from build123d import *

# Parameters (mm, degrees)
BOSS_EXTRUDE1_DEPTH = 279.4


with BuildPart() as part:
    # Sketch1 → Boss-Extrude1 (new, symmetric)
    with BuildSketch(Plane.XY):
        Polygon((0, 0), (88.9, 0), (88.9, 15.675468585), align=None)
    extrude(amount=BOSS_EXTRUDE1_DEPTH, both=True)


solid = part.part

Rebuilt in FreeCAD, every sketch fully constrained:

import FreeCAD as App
import Part
import Sketcher

V = App.Vector
Q = App.Units.Quantity


def add_polygon(sketch, points):
    """Adds a closed chain of lines whose ends are joined by coincident constraints."""
    first, n = sketch.GeometryCount, len(points)
    for a, b in zip(points, points[1:] + points[:1]):
        sketch.addGeometry(Part.LineSegment(App.Vector(*a, 0), App.Vector(*b, 0)), False)
    for i in range(n):
        sketch.addConstraint(Sketcher.Constraint("Coincident", first + i, 2, first + (i + 1) % n, 1))

doc = App.newDocument("Part")
body = doc.addObject("PartDesign::Body", "Body")

sketch1 = body.newObject("Sketcher::SketchObject", "Sketch")
sketch1.AttachmentSupport = (doc.getObject("XY_Plane"), [""])
sketch1.MapMode = "FlatFace"
add_polygon(sketch1, [(0, 0), (89, 0), (89, 16)])
sketch1.addConstraint([
    Sketcher.Constraint("Horizontal", 0),
    Sketcher.Constraint("Vertical", 1),
    Sketcher.Constraint("Coincident", 2, 2, -1, 1),
    Sketcher.Constraint("DistanceX", 0, 1, 0, 2, Q("3.5 in")),
    Sketcher.Constraint("Angle", 2, Q("-170 deg")),
])
pad1 = body.newObject("PartDesign::Pad", "Pad")
pad1.Profile = sketch1
pad1.Length = Q("22 in")
pad1.Midplane = True

doc.recompute()
